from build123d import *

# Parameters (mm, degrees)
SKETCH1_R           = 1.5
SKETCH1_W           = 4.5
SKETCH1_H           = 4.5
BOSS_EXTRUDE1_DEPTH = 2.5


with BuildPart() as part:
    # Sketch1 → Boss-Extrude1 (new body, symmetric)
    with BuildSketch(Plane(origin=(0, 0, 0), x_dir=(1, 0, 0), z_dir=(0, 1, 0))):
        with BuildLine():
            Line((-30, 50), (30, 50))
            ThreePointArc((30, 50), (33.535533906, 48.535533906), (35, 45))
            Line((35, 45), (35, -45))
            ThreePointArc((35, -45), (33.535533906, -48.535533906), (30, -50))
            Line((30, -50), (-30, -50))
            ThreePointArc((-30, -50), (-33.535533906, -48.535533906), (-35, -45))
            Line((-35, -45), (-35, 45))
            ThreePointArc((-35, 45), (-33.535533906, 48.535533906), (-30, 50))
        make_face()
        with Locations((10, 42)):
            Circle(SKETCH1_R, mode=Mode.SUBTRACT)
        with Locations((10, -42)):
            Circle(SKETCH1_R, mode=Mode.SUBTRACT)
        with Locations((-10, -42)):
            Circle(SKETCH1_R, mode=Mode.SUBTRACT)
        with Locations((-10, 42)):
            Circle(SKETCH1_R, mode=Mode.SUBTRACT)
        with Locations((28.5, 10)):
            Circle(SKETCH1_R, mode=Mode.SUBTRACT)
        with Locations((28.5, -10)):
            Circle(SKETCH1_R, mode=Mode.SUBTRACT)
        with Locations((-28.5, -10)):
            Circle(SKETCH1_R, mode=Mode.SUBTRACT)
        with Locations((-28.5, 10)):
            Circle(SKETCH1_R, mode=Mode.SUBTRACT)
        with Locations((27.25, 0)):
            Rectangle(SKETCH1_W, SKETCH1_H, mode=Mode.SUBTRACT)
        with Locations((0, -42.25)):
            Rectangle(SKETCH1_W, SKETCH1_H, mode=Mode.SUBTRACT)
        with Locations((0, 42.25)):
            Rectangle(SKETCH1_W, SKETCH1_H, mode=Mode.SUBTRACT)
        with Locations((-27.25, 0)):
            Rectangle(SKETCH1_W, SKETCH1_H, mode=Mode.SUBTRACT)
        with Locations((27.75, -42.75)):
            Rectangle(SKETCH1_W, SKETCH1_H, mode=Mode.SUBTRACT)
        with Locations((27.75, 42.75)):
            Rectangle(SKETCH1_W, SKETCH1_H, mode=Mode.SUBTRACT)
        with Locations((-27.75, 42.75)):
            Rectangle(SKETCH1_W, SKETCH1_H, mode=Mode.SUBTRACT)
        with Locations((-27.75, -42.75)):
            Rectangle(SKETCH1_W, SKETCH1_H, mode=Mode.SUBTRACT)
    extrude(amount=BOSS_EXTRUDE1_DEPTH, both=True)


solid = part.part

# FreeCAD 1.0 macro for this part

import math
import FreeCAD as App
import Part
import Sketcher


def add_polygon(sketch, points):
    """Adds a closed chain of lines whose ends are joined by coincident constraints."""
    first, n = sketch.GeometryCount, len(points)
    for a, b in zip(points, points[1:] + points[:1]):
        sketch.addGeometry(Part.LineSegment(App.Vector(*a, 0), App.Vector(*b, 0)), False)
    for i in range(n):
        sketch.addConstraint(Sketcher.Constraint("Coincident", first + i, 2, first + (i + 1) % n, 1))

doc = App.newDocument("Part")
body = doc.addObject("PartDesign::Body", "Body")

# Sketch on XZ plane
sketch1 = body.newObject("Sketcher::SketchObject", "Sketch")
sketch1.AttachmentSupport = (doc.getObject("XZ_Plane"), [""])
sketch1.MapMode = "FlatFace"
sketch1.addGeometry(Part.LineSegment(App.Vector(30, -50, 0), App.Vector(-30, -50, 0)), False)  # 0
sketch1.addGeometry(Part.ArcOfCircle(Part.Circle(App.Vector(-30, -45, 0), App.Vector(0, 0, 1), 5), math.radians(180), math.radians(270)), False)  # 1
sketch1.addGeometry(Part.LineSegment(App.Vector(-35, -45, 0), App.Vector(-35, 45, 0)), False)  # 2
sketch1.addGeometry(Part.ArcOfCircle(Part.Circle(App.Vector(-30, 45, 0), App.Vector(0, 0, 1), 5), math.radians(90), math.radians(180)), False)  # 3
sketch1.addGeometry(Part.LineSegment(App.Vector(-30, 50, 0), App.Vector(30, 50, 0)), False)  # 4
sketch1.addGeometry(Part.ArcOfCircle(Part.Circle(App.Vector(30, 45, 0), App.Vector(0, 0, 1), 5), math.radians(0), math.radians(90)), False)  # 5
sketch1.addGeometry(Part.LineSegment(App.Vector(35, 45, 0), App.Vector(35, -45, 0)), False)  # 6
sketch1.addGeometry(Part.ArcOfCircle(Part.Circle(App.Vector(30, -45, 0), App.Vector(0, 0, 1), 5), math.radians(-90), math.radians(0)), False)  # 7
add_polygon(sketch1, [(25.5, 45), (25.5, 40.5), (30, 40.5), (30, 45)])  # lines 8-11
sketch1.addGeometry(Part.Circle(App.Vector(10, 42, 0), App.Vector(0, 0, 1), 1.5), False)  # 12
sketch1.addGeometry(Part.Circle(App.Vector(28.5, 10, 0), App.Vector(0, 0, 1), 1.5), False)  # 13
add_polygon(sketch1, [(-2.2, 44.5), (-2.2, 40), (2.2, 40), (2.2, 44.5)])  # lines 14-17
sketch1.addGeometry(Part.Circle(App.Vector(-10, 42, 0), App.Vector(0, 0, 1), 1.5), False)  # 18
add_polygon(sketch1, [(-30, 45), (-30, 40.5), (-25.5, 40.5), (-25.5, 45)])  # lines 19-22
sketch1.addGeometry(Part.Circle(App.Vector(-28.5, 10, 0), App.Vector(0, 0, 1), 1.5), False)  # 23
add_polygon(sketch1, [(25, 2.2), (25, -2.2), (29.5, -2.2), (29.5, 2.2)])  # lines 24-27
sketch1.addGeometry(Part.Circle(App.Vector(28.5, -10, 0), App.Vector(0, 0, 1), 1.5), False)  # 28
add_polygon(sketch1, [(25.5, -40.5), (25.5, -45), (30, -45), (30, -40.5)])  # lines 29-32
sketch1.addGeometry(Part.Circle(App.Vector(10, -42, 0), App.Vector(0, 0, 1), 1.5), False)  # 33
add_polygon(sketch1, [(-29.5, 2.2), (-29.5, -2.2), (-25, -2.2), (-25, 2.2)])  # lines 34-37
sketch1.addGeometry(Part.Circle(App.Vector(-28.5, -10, 0), App.Vector(0, 0, 1), 1.5), False)  # 38
add_polygon(sketch1, [(-2.2, -40), (-2.2, -44.5), (2.2, -44.5), (2.2, -40)])  # lines 39-42
sketch1.addGeometry(Part.Circle(App.Vector(-10, -42, 0), App.Vector(0, 0, 1), 1.5), False)  # 43
add_polygon(sketch1, [(-30, -40.5), (-30, -45), (-25.5, -45), (-25.5, -40.5)])  # lines 44-47
sketch1.addConstraint([
    Sketcher.Constraint("Tangent", 0, 2, 1, 2),
    Sketcher.Constraint("Tangent", 1, 1, 2, 1),
    Sketcher.Constraint("Tangent", 2, 2, 3, 2),
    Sketcher.Constraint("Tangent", 3, 1, 4, 1),
    Sketcher.Constraint("Tangent", 4, 2, 5, 2),
    Sketcher.Constraint("Tangent", 5, 1, 6, 1),
    Sketcher.Constraint("Tangent", 6, 2, 7, 2),
    Sketcher.Constraint("Tangent", 7, 1, 0, 1),
    Sketcher.Constraint("Horizontal", 0),
    Sketcher.Constraint("Vertical", 2),
    Sketcher.Constraint("Horizontal", 4),
    Sketcher.Constraint("Vertical", 6),
    Sketcher.Constraint("Vertical", 8),
    Sketcher.Constraint("Horizontal", 9),
    Sketcher.Constraint("Vertical", 10),
    Sketcher.Constraint("Horizontal", 11),
    Sketcher.Constraint("Vertical", 14),
    Sketcher.Constraint("Horizontal", 15),
    Sketcher.Constraint("Vertical", 16),
    Sketcher.Constraint("Horizontal", 17),
    Sketcher.Constraint("Vertical", 19),
    Sketcher.Constraint("Horizontal", 20),
    Sketcher.Constraint("Vertical", 21),
    Sketcher.Constraint("Horizontal", 22),
    Sketcher.Constraint("Vertical", 24),
    Sketcher.Constraint("Horizontal", 25),
    Sketcher.Constraint("Vertical", 26),
    Sketcher.Constraint("Horizontal", 27),
    Sketcher.Constraint("Vertical", 29),
    Sketcher.Constraint("Horizontal", 30),
    Sketcher.Constraint("Vertical", 31),
    Sketcher.Constraint("Horizontal", 32),
    Sketcher.Constraint("Vertical", 34),
    Sketcher.Constraint("Horizontal", 35),
    Sketcher.Constraint("Vertical", 36),
    Sketcher.Constraint("Horizontal", 37),
    Sketcher.Constraint("Vertical", 39),
    Sketcher.Constraint("Horizontal", 40),
    Sketcher.Constraint("Vertical", 41),
    Sketcher.Constraint("Horizontal", 42),
    Sketcher.Constraint("Vertical", 44),
    Sketcher.Constraint("Horizontal", 45),
    Sketcher.Constraint("Vertical", 46),
    Sketcher.Constraint("Horizontal", 47),
    Sketcher.Constraint("Coincident", 10, 2, 5, 3),
    Sketcher.Constraint("Coincident", 22, 2, 3, 3),
    Sketcher.Constraint("Coincident", 30, 2, 7, 3),
    Sketcher.Constraint("Coincident", 44, 2, 1, 3),
    Sketcher.Constraint("Equal", 1, 3),
    Sketcher.Constraint("Equal", 3, 5),
    Sketcher.Constraint("Equal", 5, 7),
    Sketcher.Constraint("Equal", 12, 13),
    Sketcher.Constraint("Equal", 13, 18),
    Sketcher.Constraint("Equal", 18, 23),
    Sketcher.Constraint("Equal", 23, 28),
    Sketcher.Constraint("Equal", 28, 33),
    Sketcher.Constraint("Equal", 33, 38),
    Sketcher.Constraint("Equal", 38, 43),
    Sketcher.Constraint("Symmetric", 1, 3, 5, 3, -1, 1),
    Sketcher.Constraint("Symmetric", 23, 3, 28, 3, -1, 1),
    Sketcher.Constraint("Symmetric", 18, 3, 33, 3, -1, 1),
    Sketcher.Constraint("Symmetric", 13, 3, 38, 3, -1, 1),
    Sketcher.Constraint("Symmetric", 12, 3, 43, 3, -1, 1),
    Sketcher.Constraint("Symmetric", 20, 2, 32, 2, -1, 1),
    Sketcher.Constraint("Symmetric", 26, 2, 34, 2, -1, 1),
    Sketcher.Constraint("Symmetric", 24, 2, 36, 2, -1, 1),
    Sketcher.Constraint("Symmetric", 16, 2, 39, 2, -1, 1),
    Sketcher.Constraint("Symmetric", 14, 2, 41, 2, -1, 1),
    Sketcher.Constraint("Symmetric", 8, 2, 46, 2, -1, 1),
    Sketcher.Constraint("Symmetric", 12, 3, 18, 3, -2),
    Sketcher.Constraint("Symmetric", 13, 3, 23, 3, -2),
    Sketcher.Constraint("Symmetric", 8, 2, 20, 2, -2),
    Sketcher.Constraint("Horizontal", 25, 2, 34, 2),
    Sketcher.Constraint("Vertical", 17, 2, 39, 2),
    Sketcher.Constraint("Equal", 11, 15),
    Sketcher.Constraint("Equal", 22, 25),
    Sketcher.Constraint("Equal", 47, 8),
    Sketcher.Constraint("Equal", 10, 14),
    Sketcher.Constraint("Equal", 21, 24),
    Sketcher.Constraint("Diameter", 12, 3.0),
    Sketcher.Constraint("Radius", 1, 5.0),
    Sketcher.Constraint("DistanceX", 0, 2, 0, 1, 60.0),
    Sketcher.Constraint("DistanceY", 2, 1, 2, 2, 90.0),
    Sketcher.Constraint("DistanceX", 9, 1, 9, 2, 4.5),
    Sketcher.Constraint("DistanceX", -1, 1, 12, 3, 10.0),
    Sketcher.Constraint("DistanceY", -1, 1, 12, 3, 42.0),
    Sketcher.Constraint("DistanceY", -1, 1, 13, 3, 10.0),
    Sketcher.Constraint("DistanceY", -1, 1, 14, 2, 40.0),
    Sketcher.Constraint("DistanceX", -1, 1, 24, 2, 25.0),
    Sketcher.Constraint("DistanceX", 23, 3, 13, 3, 57.0),
])
pad1 = body.newObject("PartDesign::Pad", "Pad")
pad1.Profile = sketch1
pad1.Length = 5
pad1.Midplane = True

doc.recompute()
